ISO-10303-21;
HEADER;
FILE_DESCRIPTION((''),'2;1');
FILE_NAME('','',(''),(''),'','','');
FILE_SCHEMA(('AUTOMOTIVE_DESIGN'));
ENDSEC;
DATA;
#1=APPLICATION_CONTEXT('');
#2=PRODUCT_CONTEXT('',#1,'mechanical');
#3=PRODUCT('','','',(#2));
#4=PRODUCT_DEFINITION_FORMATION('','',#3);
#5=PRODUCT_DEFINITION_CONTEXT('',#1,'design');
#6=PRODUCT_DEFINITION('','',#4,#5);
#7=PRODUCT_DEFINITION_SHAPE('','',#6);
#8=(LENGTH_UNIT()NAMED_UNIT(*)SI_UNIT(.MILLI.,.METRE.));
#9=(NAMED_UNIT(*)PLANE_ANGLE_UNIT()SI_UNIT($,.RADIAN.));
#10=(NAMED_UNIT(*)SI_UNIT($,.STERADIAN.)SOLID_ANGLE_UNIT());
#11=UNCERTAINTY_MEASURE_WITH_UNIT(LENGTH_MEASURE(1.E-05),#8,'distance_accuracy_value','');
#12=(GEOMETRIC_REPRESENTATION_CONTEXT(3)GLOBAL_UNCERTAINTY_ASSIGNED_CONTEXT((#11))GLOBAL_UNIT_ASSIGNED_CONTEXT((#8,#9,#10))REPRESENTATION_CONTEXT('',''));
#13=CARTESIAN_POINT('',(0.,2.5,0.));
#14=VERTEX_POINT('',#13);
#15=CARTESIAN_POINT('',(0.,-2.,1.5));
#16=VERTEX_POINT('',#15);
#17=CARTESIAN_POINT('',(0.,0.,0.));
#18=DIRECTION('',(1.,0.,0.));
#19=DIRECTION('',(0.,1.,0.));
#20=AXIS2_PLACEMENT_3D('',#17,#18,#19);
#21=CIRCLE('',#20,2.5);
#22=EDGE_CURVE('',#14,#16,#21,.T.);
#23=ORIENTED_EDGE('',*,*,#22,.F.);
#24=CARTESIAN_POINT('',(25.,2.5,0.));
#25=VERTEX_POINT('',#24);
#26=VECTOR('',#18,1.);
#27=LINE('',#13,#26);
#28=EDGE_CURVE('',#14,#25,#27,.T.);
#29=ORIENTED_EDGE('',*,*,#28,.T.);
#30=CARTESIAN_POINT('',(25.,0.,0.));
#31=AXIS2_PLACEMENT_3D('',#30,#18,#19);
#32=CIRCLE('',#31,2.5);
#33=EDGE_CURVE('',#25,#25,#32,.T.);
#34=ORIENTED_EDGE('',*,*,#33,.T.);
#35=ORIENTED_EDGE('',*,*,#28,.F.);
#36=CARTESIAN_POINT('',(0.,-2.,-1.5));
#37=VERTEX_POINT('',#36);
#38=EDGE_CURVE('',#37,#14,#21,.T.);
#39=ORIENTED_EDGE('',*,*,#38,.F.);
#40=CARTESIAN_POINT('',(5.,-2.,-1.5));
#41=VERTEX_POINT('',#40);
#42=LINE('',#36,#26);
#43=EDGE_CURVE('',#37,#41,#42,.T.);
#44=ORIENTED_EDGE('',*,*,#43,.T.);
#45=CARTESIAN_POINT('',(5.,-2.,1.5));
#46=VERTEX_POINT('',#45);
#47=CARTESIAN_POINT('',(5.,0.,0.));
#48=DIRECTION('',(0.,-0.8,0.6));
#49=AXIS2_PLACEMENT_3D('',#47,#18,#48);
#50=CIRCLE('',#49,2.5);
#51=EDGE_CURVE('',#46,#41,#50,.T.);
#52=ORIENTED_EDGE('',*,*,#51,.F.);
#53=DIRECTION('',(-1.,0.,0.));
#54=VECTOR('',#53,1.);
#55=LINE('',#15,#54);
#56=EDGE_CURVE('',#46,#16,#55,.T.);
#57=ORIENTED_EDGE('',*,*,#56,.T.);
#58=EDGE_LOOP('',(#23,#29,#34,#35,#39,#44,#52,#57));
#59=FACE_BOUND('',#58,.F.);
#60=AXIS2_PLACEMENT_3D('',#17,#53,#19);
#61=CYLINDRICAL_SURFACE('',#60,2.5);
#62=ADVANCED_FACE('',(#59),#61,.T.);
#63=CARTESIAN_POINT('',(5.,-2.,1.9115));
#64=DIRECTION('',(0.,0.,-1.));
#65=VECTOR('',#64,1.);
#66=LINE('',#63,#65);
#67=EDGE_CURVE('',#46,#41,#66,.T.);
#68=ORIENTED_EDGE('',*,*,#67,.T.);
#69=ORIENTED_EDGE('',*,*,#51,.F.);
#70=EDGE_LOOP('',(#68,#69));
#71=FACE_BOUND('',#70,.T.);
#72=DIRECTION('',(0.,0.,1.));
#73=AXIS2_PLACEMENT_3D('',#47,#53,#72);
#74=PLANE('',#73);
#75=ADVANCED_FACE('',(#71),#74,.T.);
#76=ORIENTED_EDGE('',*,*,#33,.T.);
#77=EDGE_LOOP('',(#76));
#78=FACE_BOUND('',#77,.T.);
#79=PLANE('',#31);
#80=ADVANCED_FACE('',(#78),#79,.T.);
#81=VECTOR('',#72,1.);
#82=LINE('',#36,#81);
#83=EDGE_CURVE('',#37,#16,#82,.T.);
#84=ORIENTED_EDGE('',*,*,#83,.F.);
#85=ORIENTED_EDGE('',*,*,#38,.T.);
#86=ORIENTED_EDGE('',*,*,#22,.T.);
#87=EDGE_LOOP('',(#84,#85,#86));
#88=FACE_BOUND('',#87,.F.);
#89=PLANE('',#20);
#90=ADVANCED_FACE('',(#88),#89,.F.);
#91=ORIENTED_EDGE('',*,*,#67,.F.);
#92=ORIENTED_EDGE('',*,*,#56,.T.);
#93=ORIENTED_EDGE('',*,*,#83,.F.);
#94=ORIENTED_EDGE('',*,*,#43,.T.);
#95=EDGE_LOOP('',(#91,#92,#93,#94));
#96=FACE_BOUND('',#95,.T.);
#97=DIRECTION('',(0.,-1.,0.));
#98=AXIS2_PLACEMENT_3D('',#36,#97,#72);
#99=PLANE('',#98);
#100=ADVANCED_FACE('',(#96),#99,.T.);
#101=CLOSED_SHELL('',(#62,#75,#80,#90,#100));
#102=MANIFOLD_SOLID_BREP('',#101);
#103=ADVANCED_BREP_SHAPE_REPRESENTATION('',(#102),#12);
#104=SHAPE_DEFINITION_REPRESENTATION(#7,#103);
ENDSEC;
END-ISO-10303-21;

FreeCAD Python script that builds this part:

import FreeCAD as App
import Part
import Sketcher
from FreeCAD import Vector
Q = App.Units.Quantity

doc = App.newDocument("Part")
params = doc.addObject("Spreadsheet::Sheet", "Params")
for row, (alias, value) in enumerate([
    ("sketch1_diameter", "5 mm"),
    ("pad1_length", "25 mm"),
    ("sketch2_width", "0.5 mm"),
    ("pocket1_length", "5 mm"),
], start=1):
    params.set(f"A{row}", alias)
    params.set(f"B{row}", "=" + value)
    params.setAlias(f"B{row}", alias)

body = doc.addObject("PartDesign::Body", "Body")

# Sketch on YZ plane
sketch1 = body.newObject("Sketcher::SketchObject", "Sketch")
sketch1.AttachmentSupport = (doc.getObject("YZ_Plane"), [""])
sketch1.MapMode = "FlatFace"
sketch1.addGeometry(Part.Circle(Vector(0, 0, 0), Vector(0, 0, 1), 2.5), False)
sketch1.addConstraint([
    Sketcher.Constraint("Coincident", 0, 3, -1, 1),
    Sketcher.Constraint("Diameter", 0, Q("5 mm")),
])
sketch1.setExpression("Constraints[1]", "Params.sketch1_diameter")
pad1 = body.newObject("PartDesign::Pad", "Pad")
pad1.Profile = sketch1
pad1.setExpression("Length", "Params.pad1_length")

# Sketch on YZ plane
sketch2 = body.newObject("Sketcher::SketchObject", "Sketch001")
sketch2.AttachmentSupport = (doc.getObject("YZ_Plane"), [""])
sketch2.MapMode = "FlatFace"
sketch2.addGeometry([
    Part.LineSegment(Vector(-2, -1.5, 0), Vector(-2.5, -1.5, 0)),
    Part.LineSegment(Vector(-2.5, -1.5, 0), Vector(-2.5, 1.9, 0)),
    Part.LineSegment(Vector(-2.5, 1.9, 0), Vector(-2, 1.9, 0)),
    Part.LineSegment(Vector(-2, 1.9, 0), Vector(-2, -1.5, 0)),
], False)
sketch2.addConstraint([
    Sketcher.Constraint("Coincident", 0, 2, 1, 1),
    Sketcher.Constraint("Coincident", 1, 2, 2, 1),
    Sketcher.Constraint("Coincident", 2, 2, 3, 1),
    Sketcher.Constraint("Coincident", 3, 2, 0, 1),
    Sketcher.Constraint("Horizontal", 0),
    Sketcher.Constraint("Vertical", 1),
    Sketcher.Constraint("Horizontal", 2),
    Sketcher.Constraint("Vertical", 3),
    Sketcher.Constraint("DistanceX", 0, 2, 0, 1, Q("0.5 mm")),
    Sketcher.Constraint("DistanceX", 2, 2, -1, 1, Q("2 mm")),
    Sketcher.Constraint("DistanceY", 0, 2, -1, 1, Q("1.5 mm")),
    Sketcher.Constraint("DistanceY", 1, 1, 1, 2, Q("3.4115 mm")),
])
sketch2.setExpression("Constraints[8]", "Params.sketch2_width")
pocket1 = body.newObject("PartDesign::Pocket", "Pocket")
pocket1.Profile = sketch2
pocket1.setExpression("Length", "Params.pocket1_length")
pocket1.Reversed = True

doc.recompute()
